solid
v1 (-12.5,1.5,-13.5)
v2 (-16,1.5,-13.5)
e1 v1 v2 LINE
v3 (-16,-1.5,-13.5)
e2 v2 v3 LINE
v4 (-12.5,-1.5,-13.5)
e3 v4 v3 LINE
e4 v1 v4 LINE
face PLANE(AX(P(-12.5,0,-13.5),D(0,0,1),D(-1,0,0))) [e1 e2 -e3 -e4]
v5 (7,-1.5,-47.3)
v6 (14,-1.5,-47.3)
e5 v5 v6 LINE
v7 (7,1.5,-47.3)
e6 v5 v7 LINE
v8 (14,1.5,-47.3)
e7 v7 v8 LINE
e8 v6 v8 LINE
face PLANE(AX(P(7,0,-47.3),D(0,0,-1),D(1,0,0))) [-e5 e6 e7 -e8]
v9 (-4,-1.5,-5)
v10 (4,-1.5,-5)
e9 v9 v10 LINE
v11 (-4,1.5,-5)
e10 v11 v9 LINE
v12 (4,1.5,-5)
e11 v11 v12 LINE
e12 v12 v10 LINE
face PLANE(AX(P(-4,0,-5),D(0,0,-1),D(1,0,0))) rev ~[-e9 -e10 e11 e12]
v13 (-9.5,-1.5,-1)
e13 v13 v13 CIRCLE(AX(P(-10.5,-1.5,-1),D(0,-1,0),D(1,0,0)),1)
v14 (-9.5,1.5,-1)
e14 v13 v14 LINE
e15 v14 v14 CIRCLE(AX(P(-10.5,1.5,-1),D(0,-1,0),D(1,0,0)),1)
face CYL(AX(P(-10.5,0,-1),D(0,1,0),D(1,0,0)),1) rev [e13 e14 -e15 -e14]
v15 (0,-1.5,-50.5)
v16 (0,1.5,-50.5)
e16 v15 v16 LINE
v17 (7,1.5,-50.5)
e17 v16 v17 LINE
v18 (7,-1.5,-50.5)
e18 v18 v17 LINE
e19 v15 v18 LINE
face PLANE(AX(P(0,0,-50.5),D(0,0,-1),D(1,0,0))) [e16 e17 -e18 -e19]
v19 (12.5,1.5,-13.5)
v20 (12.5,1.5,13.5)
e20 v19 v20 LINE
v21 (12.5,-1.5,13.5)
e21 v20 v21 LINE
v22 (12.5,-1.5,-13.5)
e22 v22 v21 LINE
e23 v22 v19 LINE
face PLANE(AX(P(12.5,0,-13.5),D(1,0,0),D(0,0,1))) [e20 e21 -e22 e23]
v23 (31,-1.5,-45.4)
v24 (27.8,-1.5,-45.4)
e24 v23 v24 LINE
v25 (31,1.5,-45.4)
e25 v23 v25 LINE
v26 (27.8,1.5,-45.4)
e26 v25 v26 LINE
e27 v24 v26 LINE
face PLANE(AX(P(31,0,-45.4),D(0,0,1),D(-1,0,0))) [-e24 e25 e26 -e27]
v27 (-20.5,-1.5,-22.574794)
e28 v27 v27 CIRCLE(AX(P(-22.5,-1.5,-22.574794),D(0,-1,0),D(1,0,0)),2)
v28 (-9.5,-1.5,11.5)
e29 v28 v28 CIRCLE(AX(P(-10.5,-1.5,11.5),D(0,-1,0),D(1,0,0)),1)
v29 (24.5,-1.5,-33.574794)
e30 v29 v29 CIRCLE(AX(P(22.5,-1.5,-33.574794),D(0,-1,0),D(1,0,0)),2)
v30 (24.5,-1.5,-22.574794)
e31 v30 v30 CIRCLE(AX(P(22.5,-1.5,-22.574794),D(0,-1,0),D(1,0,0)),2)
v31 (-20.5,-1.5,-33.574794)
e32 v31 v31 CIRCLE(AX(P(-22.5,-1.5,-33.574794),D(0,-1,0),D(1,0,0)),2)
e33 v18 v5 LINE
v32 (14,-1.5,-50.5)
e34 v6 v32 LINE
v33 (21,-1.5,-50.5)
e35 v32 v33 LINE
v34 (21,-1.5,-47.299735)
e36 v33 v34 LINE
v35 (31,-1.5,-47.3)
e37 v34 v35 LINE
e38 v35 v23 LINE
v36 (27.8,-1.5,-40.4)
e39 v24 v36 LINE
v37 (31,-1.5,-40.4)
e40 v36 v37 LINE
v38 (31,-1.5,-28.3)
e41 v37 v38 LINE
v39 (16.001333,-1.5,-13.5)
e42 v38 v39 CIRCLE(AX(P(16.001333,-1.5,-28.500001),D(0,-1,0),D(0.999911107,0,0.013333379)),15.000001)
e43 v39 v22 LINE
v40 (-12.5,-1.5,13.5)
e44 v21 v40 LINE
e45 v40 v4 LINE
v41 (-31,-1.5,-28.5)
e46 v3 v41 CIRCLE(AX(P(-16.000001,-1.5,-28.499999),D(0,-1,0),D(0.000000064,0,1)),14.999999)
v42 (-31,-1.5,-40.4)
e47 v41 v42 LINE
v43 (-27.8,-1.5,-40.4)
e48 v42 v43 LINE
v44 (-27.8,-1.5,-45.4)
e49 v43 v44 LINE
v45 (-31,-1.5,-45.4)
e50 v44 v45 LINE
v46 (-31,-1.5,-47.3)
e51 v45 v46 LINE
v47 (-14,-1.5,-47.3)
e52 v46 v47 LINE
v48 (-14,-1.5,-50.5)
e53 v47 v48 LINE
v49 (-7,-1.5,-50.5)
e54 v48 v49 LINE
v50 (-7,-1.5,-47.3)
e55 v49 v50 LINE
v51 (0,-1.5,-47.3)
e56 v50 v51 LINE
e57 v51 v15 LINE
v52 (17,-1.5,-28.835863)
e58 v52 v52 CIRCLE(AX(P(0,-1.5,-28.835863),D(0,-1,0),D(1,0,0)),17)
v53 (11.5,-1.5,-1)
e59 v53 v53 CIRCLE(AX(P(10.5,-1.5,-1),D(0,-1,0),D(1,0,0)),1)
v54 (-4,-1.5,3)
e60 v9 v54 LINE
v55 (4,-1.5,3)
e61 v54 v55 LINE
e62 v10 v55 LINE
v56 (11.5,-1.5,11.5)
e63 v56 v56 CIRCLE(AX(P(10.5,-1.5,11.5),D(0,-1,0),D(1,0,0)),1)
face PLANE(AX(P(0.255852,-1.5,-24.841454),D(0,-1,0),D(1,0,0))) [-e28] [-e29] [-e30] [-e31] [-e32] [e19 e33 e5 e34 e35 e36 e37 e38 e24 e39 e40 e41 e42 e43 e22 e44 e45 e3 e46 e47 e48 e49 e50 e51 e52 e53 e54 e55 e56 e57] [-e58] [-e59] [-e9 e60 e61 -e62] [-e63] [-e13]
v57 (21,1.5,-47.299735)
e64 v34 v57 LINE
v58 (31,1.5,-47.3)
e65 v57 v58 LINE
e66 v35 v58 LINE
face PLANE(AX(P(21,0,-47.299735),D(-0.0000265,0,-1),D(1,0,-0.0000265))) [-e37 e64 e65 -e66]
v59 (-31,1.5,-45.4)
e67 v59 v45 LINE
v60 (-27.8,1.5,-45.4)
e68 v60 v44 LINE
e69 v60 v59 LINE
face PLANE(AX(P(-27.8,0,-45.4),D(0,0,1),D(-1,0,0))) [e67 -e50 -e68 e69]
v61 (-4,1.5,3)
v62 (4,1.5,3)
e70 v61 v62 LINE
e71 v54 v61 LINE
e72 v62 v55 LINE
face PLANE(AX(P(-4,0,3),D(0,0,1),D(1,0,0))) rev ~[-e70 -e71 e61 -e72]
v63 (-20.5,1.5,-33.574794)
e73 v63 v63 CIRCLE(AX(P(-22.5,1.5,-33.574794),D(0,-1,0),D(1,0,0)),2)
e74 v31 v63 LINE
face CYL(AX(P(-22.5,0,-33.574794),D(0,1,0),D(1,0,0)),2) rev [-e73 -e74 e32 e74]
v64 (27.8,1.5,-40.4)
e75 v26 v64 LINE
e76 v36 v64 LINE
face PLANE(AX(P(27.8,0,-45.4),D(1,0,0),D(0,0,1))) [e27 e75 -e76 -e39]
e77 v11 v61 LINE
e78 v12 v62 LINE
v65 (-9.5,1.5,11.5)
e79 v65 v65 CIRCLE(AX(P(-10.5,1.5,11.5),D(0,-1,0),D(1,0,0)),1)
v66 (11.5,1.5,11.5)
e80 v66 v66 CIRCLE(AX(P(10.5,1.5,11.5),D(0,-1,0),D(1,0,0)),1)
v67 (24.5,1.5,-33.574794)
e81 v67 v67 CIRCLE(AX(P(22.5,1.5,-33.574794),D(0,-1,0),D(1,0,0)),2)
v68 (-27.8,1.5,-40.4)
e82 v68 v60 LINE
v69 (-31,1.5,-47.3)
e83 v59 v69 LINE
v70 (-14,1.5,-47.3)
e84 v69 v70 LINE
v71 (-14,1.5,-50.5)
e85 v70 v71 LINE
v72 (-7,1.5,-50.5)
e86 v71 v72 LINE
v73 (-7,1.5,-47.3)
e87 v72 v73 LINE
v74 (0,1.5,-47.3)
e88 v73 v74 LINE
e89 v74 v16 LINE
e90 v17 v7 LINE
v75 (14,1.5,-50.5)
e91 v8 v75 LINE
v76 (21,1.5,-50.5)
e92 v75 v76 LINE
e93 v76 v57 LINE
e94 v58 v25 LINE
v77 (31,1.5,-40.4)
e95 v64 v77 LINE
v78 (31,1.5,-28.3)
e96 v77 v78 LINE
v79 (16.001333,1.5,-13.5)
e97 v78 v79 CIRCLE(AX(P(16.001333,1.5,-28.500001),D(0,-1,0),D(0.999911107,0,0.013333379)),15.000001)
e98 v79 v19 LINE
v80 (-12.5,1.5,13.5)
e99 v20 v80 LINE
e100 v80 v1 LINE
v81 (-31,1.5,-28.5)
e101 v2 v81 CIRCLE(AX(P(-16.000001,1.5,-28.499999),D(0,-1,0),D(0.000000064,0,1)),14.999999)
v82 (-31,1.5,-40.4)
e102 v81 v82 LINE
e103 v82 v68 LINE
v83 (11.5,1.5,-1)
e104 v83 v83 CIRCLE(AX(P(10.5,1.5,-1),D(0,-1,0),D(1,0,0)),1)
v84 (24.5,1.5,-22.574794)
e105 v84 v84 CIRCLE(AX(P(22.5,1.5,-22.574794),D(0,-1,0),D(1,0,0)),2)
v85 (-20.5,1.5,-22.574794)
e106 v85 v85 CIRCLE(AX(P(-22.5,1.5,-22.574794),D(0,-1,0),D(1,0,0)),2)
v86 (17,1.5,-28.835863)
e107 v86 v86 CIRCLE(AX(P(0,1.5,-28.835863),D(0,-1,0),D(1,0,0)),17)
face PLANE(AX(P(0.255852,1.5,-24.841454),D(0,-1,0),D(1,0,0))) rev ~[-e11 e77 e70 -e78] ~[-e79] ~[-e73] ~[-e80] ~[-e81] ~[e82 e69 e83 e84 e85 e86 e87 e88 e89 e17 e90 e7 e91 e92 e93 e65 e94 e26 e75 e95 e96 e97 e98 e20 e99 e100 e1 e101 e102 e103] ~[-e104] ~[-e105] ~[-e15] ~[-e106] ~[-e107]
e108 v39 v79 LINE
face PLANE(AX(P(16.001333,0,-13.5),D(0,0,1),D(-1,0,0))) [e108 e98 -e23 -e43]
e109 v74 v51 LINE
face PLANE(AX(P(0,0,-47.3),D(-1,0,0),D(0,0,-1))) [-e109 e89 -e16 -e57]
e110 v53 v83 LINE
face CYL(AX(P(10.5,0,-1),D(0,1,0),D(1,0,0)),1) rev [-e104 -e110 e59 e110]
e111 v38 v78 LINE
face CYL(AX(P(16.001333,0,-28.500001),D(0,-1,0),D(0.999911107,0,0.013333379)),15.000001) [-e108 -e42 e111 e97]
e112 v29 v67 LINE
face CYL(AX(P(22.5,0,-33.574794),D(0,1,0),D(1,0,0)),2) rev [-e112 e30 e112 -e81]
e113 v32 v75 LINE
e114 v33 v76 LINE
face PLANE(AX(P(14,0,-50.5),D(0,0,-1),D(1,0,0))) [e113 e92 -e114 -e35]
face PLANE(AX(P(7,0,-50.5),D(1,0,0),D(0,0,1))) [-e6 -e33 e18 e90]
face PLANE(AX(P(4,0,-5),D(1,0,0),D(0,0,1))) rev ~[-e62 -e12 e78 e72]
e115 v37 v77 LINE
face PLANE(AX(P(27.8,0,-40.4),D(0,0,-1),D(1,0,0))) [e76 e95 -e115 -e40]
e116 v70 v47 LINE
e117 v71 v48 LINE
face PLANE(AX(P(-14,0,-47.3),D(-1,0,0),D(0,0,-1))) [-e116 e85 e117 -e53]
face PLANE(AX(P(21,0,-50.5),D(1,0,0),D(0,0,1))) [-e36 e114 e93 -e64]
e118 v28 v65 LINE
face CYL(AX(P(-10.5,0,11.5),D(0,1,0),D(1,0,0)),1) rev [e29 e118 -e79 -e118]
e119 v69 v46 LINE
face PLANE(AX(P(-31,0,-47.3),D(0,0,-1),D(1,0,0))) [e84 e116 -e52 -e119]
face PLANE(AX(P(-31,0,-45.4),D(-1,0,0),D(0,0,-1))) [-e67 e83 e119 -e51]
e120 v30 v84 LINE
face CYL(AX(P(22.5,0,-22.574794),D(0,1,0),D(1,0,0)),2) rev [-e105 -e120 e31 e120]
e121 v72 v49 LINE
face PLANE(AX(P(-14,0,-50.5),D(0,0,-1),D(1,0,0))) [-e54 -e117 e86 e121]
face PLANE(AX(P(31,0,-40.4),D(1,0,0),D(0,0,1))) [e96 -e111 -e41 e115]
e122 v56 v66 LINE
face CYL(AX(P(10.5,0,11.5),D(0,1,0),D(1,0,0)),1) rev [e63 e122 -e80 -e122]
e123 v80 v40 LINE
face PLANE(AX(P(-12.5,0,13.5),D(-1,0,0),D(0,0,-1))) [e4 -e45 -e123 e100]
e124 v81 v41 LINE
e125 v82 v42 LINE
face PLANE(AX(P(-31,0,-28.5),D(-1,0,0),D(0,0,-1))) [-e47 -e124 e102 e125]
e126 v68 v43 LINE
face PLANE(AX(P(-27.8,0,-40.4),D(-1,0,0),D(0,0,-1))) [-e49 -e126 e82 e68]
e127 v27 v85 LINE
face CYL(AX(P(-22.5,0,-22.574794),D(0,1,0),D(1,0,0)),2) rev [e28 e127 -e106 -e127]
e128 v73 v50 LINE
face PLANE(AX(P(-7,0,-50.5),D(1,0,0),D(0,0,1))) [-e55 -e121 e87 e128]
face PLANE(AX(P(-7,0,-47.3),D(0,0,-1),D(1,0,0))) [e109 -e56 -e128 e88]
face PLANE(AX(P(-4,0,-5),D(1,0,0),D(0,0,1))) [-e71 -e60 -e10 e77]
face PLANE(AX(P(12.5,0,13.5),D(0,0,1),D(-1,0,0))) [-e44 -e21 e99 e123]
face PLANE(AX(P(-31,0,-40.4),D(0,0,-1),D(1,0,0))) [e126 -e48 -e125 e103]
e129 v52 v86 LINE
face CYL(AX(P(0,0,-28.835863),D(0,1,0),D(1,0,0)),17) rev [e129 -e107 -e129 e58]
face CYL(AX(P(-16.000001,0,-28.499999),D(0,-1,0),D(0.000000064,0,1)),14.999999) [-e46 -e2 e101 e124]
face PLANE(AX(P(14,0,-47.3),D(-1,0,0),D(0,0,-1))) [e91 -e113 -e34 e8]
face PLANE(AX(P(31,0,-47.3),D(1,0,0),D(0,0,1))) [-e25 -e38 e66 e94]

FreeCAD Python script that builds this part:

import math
import FreeCAD as App
import Part
import Sketcher


def add_polygon(sketch, points):
    """Adds a closed chain of lines whose ends are joined by coincident constraints."""
    first, n = sketch.GeometryCount, len(points)
    for a, b in zip(points, points[1:] + points[:1]):
        sketch.addGeometry(Part.LineSegment(App.Vector(*a, 0), App.Vector(*b, 0)), False)
    for i in range(n):
        sketch.addConstraint(Sketcher.Constraint("Coincident", first + i, 2, first + (i + 1) % n, 1))

doc = App.newDocument("Part")
body = doc.addObject("PartDesign::Body", "Body")

# Sketch on XZ plane
sketch1 = doc.addObject("Sketcher::SketchObject", "Sketch")
body.addObject(sketch1)
sketch1.AttachmentSupport = (doc.XZ_Plane, [""])
sketch1.MapMode = "FlatFace"
sketch1.addGeometry(Part.LineSegment(App.Vector(12.5, -13.5, 0), App.Vector(12.5, 13.5, 0)), False)  # 0
sketch1.addGeometry(Part.LineSegment(App.Vector(12.5, 13.5, 0), App.Vector(-12.5, 13.5, 0)), False)  # 1
sketch1.addGeometry(Part.LineSegment(App.Vector(-12.5, 13.5, 0), App.Vector(-12.5, -13.5, 0)), False)  # 2
sketch1.addGeometry(Part.LineSegment(App.Vector(-12.5, -13.5, 0), App.Vector(-16, -13.5, 0)), False)  # 3
sketch1.addGeometry(Part.ArcOfCircle(Part.Circle(App.Vector(-16.000001, -28.499999, 0), App.Vector(0, 0, 1), 14.999999), math.radians(89.999996), math.radians(180.000004)), False)  # 4
sketch1.addGeometry(Part.LineSegment(App.Vector(-31, -28.5, 0), App.Vector(-31, -40.4, 0)), False)  # 5
sketch1.addGeometry(Part.LineSegment(App.Vector(-31, -40.4, 0), App.Vector(-27.8, -40.4, 0)), False)  # 6
sketch1.addGeometry(Part.LineSegment(App.Vector(-27.8, -40.4, 0), App.Vector(-27.8, -45.4, 0)), False)  # 7
sketch1.addGeometry(Part.LineSegment(App.Vector(-27.8, -45.4, 0), App.Vector(-31, -45.4, 0)), False)  # 8
sketch1.addGeometry(Part.LineSegment(App.Vector(-31, -45.4, 0), App.Vector(-31, -47.3, 0)), False)  # 9
sketch1.addGeometry(Part.LineSegment(App.Vector(-31, -47.3, 0), App.Vector(-14, -47.3, 0)), False)  # 10
sketch1.addGeometry(Part.LineSegment(App.Vector(-14, -47.3, 0), App.Vector(-14, -50.5, 0)), False)  # 11
sketch1.addGeometry(Part.LineSegment(App.Vector(-14, -50.5, 0), App.Vector(-7, -50.5, 0)), False)  # 12
sketch1.addGeometry(Part.LineSegment(App.Vector(-7, -50.5, 0), App.Vector(-7, -47.3, 0)), False)  # 13
sketch1.addGeometry(Part.LineSegment(App.Vector(-7, -47.3, 0), App.Vector(0, -47.3, 0)), False)  # 14
sketch1.addGeometry(Part.LineSegment(App.Vector(0, -47.3, 0), App.Vector(0, -50.5, 0)), False)  # 15
sketch1.addGeometry(Part.LineSegment(App.Vector(0, -50.5, 0), App.Vector(7, -50.5, 0)), False)  # 16
sketch1.addGeometry(Part.LineSegment(App.Vector(7, -50.5, 0), App.Vector(7, -47.3, 0)), False)  # 17
sketch1.addGeometry(Part.LineSegment(App.Vector(7, -47.3, 0), App.Vector(14, -47.3, 0)), False)  # 18
sketch1.addGeometry(Part.LineSegment(App.Vector(14, -47.3, 0), App.Vector(14, -50.5, 0)), False)  # 19
sketch1.addGeometry(Part.LineSegment(App.Vector(14, -50.5, 0), App.Vector(21, -50.5, 0)), False)  # 20
sketch1.addGeometry(Part.LineSegment(App.Vector(21, -50.5, 0), App.Vector(21, -47.299735, 0)), False)  # 21
sketch1.addGeometry(Part.LineSegment(App.Vector(21, -47.299735, 0), App.Vector(31, -47.3, 0)), False)  # 22
sketch1.addGeometry(Part.LineSegment(App.Vector(31, -47.3, 0), App.Vector(31, -45.4, 0)), False)  # 23
sketch1.addGeometry(Part.LineSegment(App.Vector(31, -45.4, 0), App.Vector(27.8, -45.4, 0)), False)  # 24
sketch1.addGeometry(Part.LineSegment(App.Vector(27.8, -45.4, 0), App.Vector(27.8, -40.4, 0)), False)  # 25
sketch1.addGeometry(Part.LineSegment(App.Vector(27.8, -40.4, 0), App.Vector(31, -40.4, 0)), False)  # 26
sketch1.addGeometry(Part.LineSegment(App.Vector(31, -40.4, 0), App.Vector(31, -28.3, 0)), False)  # 27
sketch1.addGeometry(Part.ArcOfCircle(Part.Circle(App.Vector(16.001333, -28.500001, 0), App.Vector(0, 0, 1), 15.000001), math.radians(0.763969), math.radians(89.999999)), False)  # 28
sketch1.addGeometry(Part.LineSegment(App.Vector(16.001333, -13.5, 0), App.Vector(12.5, -13.5, 0)), False)  # 29
sketch1.addGeometry(Part.Circle(App.Vector(-22.5, -33.574794, 0), App.Vector(0, 0, 1), 2), False)  # 30
sketch1.addGeometry(Part.Circle(App.Vector(-22.5, -22.574794, 0), App.Vector(0, 0, 1), 2), False)  # 31
sketch1.addGeometry(Part.Circle(App.Vector(0, -28.835863, 0), App.Vector(0, 0, 1), 17), False)  # 32
sketch1.addGeometry(Part.Circle(App.Vector(22.5, -33.574794, 0), App.Vector(0, 0, 1), 2), False)  # 33
sketch1.addGeometry(Part.Circle(App.Vector(22.5, -22.574794, 0), App.Vector(0, 0, 1), 2), False)  # 34
sketch1.addGeometry(Part.Circle(App.Vector(-10.5, -1, 0), App.Vector(0, 0, 1), 1), False)  # 35
add_polygon(sketch1, [(4, -5), (-4, -5), (-4, 3), (4, 3)])  # lines 36-39
sketch1.addGeometry(Part.Circle(App.Vector(-10.5, 11.5, 0), App.Vector(0, 0, 1), 1), False)  # 40
sketch1.addGeometry(Part.Circle(App.Vector(10.5, -1, 0), App.Vector(0, 0, 1), 1), False)  # 41
sketch1.addGeometry(Part.Circle(App.Vector(10.5, 11.5, 0), App.Vector(0, 0, 1), 1), False)  # 42
sketch1.addConstraint([
    Sketcher.Constraint("Coincident", 0, 2, 1, 1),
    Sketcher.Constraint("Coincident", 1, 2, 2, 1),
    Sketcher.Constraint("Coincident", 2, 2, 3, 1),
    Sketcher.Constraint("Tangent", 3, 2, 4, 1),
    Sketcher.Constraint("Tangent", 4, 2, 5, 1),
    Sketcher.Constraint("Coincident", 5, 2, 6, 1),
    Sketcher.Constraint("Coincident", 6, 2, 7, 1),
    Sketcher.Constraint("Coincident", 7, 2, 8, 1),
    Sketcher.Constraint("Coincident", 8, 2, 9, 1),
    Sketcher.Constraint("Coincident", 9, 2, 10, 1),
    Sketcher.Constraint("Coincident", 10, 2, 11, 1),
    Sketcher.Constraint("Coincident", 11, 2, 12, 1),
    Sketcher.Constraint("Coincident", 12, 2, 13, 1),
    Sketcher.Constraint("Coincident", 13, 2, 14, 1),
    Sketcher.Constraint("Coincident", 14, 2, 15, 1),
    Sketcher.Constraint("Coincident", 15, 2, 16, 1),
    Sketcher.Constraint("Coincident", 16, 2, 17, 1),
    Sketcher.Constraint("Coincident", 17, 2, 18, 1),
    Sketcher.Constraint("Coincident", 18, 2, 19, 1),
    Sketcher.Constraint("Coincident", 19, 2, 20, 1),
    Sketcher.Constraint("Coincident", 20, 2, 21, 1),
    Sketcher.Constraint("Coincident", 21, 2, 22, 1),
    Sketcher.Constraint("Coincident", 22, 2, 23, 1),
    Sketcher.Constraint("Coincident", 23, 2, 24, 1),
    Sketcher.Constraint("Coincident", 24, 2, 25, 1),
    Sketcher.Constraint("Coincident", 25, 2, 26, 1),
    Sketcher.Constraint("Coincident", 26, 2, 27, 1),
    Sketcher.Constraint("Coincident", 27, 2, 28, 1),
    Sketcher.Constraint("Tangent", 28, 2, 29, 1),
    Sketcher.Constraint("Coincident", 29, 2, 0, 1),
    Sketcher.Constraint("Vertical", 0),
    Sketcher.Constraint("Horizontal", 1),
    Sketcher.Constraint("Vertical", 2),
    Sketcher.Constraint("Horizontal", 3),
    Sketcher.Constraint("Vertical", 5),
    Sketcher.Constraint("Horizontal", 6),
    Sketcher.Constraint("Vertical", 7),
    Sketcher.Constraint("Horizontal", 8),
    Sketcher.Constraint("Vertical", 9),
    Sketcher.Constraint("Horizontal", 10),
    Sketcher.Constraint("Vertical", 11),
    Sketcher.Constraint("Horizontal", 12),
    Sketcher.Constraint("Vertical", 13),
    Sketcher.Constraint("Horizontal", 14),
    Sketcher.Constraint("Vertical", 15),
    Sketcher.Constraint("Horizontal", 16),
    Sketcher.Constraint("Vertical", 17),
    Sketcher.Constraint("Horizontal", 18),
    Sketcher.Constraint("Vertical", 19),
    Sketcher.Constraint("Horizontal", 20),
    Sketcher.Constraint("Vertical", 21),
    Sketcher.Constraint("Vertical", 23),
    Sketcher.Constraint("Horizontal", 24),
    Sketcher.Constraint("Vertical", 25),
    Sketcher.Constraint("Horizontal", 26),
    Sketcher.Constraint("Vertical", 27),
    Sketcher.Constraint("Horizontal", 29),
    Sketcher.Constraint("Horizontal", 36),
    Sketcher.Constraint("Vertical", 37),
    Sketcher.Constraint("Horizontal", 38),
    Sketcher.Constraint("Vertical", 39),
    Sketcher.Constraint("Equal", 4, 28),
    Sketcher.Constraint("Equal", 30, 31),
    Sketcher.Constraint("Equal", 31, 33),
    Sketcher.Constraint("Equal", 33, 34),
    Sketcher.Constraint("Equal", 35, 40),
    Sketcher.Constraint("Equal", 40, 41),
    Sketcher.Constraint("Equal", 41, 42),
    Sketcher.Constraint("Symmetric", 0, 2, 2, 2, -1, 1),
    Sketcher.Constraint("Symmetric", 30, 3, 33, 3, -2),
    Sketcher.Constraint("Symmetric", 31, 3, 34, 3, -2),
    Sketcher.Constraint("Symmetric", 35, 3, 41, 3, -2),
    Sketcher.Constraint("Symmetric", 40, 3, 42, 3, -2),
    Sketcher.Constraint("Symmetric", 12, 2, 16, 2, -2),
    Sketcher.Constraint("Symmetric", 10, 2, 18, 2, -2),
    Sketcher.Constraint("Symmetric", 9, 2, 22, 2, -2),
    Sketcher.Constraint("Symmetric", 7, 2, 24, 2, -2),
    Sketcher.Constraint("Symmetric", 5, 2, 26, 2, -2),
    Sketcher.Constraint("PointOnObject", 32, 3, -2),
    Sketcher.Constraint("PointOnObject", 14, 2, -2),
    Sketcher.Constraint("Horizontal", 4, 3, 28, 3),
    Sketcher.Constraint("Horizontal", 10, 2, 13, 2),
    Sketcher.Constraint("Horizontal", 16, 2, 19, 2),
    Sketcher.Constraint("Vertical", 30, 3, 31, 3),
    Sketcher.Constraint("Vertical", 35, 3, 40, 3),
    Sketcher.Constraint("Vertical", 5, 2, 8, 2),
    Sketcher.Constraint("Equal", 12, 14),
    Sketcher.Constraint("Equal", 18, 20),
    Sketcher.Constraint("Equal", 26, 11),
    Sketcher.Constraint("Equal", 38, 37),
    Sketcher.Constraint("Diameter", 30, 4.0),
    Sketcher.Constraint("Diameter", 32, 34.0),
    Sketcher.Constraint("Diameter", 35, 2.0),
    Sketcher.Constraint("Radius", 4, 14.999999),
    Sketcher.Constraint("DistanceX", 1, 2, 1, 1, 25.0),
    Sketcher.Constraint("DistanceX", 10, 1, 10, 2, 17.0),
    Sketcher.Constraint("DistanceX", 12, 1, 12, 2, 7.0),
    Sketcher.Constraint("DistanceX", 36, 2, 36, 1, 8.0),
    Sketcher.Constraint("DistanceY", 0, 1, 0, 2, 27.0),
    Sketcher.Constraint("DistanceY", 7, 2, 7, 1, 5.0),
    Sketcher.Constraint("DistanceX", 6, 1, 6, 2, 3.2),
    Sketcher.Constraint("DistanceY", 5, 2, 5, 1, 11.9),
    Sketcher.Constraint("DistanceY", 9, 2, 9, 1, 1.9),
    Sketcher.Constraint("DistanceY", 27, 1, 27, 2, 12.1),
    Sketcher.Constraint("DistanceY", 35, 3, -1, 1, 1.0),
    Sketcher.Constraint("DistanceX", 36, 2, -1, 1, 4.0),
    Sketcher.Constraint("DistanceY", 36, 2, -1, 1, 5.0),
    Sketcher.Constraint("DistanceY", 30, 3, 31, 3, 11.0),
    Sketcher.Constraint("DistanceX", 30, 3, 33, 3, 45.0),
    Sketcher.Constraint("DistanceX", 31, 3, 35, 3, 12.0),
    Sketcher.Constraint("DistanceY", 4, 3, 40, 3, 39.999999),
    Sketcher.Constraint("DistanceY", 21, 1, 21, 2, 3.200265),
    Sketcher.Constraint("DistanceY", 30, 3, 32, 3, 4.738931),
    Sketcher.Constraint("DistanceY", 21, 2, 33, 3, 13.724941),
])
pad1 = doc.addObject("PartDesign::Pad", "Pad")
body.addObject(pad1)
pad1.Profile = sketch1
pad1.Length = 3
pad1.Midplane = True

doc.recompute()
